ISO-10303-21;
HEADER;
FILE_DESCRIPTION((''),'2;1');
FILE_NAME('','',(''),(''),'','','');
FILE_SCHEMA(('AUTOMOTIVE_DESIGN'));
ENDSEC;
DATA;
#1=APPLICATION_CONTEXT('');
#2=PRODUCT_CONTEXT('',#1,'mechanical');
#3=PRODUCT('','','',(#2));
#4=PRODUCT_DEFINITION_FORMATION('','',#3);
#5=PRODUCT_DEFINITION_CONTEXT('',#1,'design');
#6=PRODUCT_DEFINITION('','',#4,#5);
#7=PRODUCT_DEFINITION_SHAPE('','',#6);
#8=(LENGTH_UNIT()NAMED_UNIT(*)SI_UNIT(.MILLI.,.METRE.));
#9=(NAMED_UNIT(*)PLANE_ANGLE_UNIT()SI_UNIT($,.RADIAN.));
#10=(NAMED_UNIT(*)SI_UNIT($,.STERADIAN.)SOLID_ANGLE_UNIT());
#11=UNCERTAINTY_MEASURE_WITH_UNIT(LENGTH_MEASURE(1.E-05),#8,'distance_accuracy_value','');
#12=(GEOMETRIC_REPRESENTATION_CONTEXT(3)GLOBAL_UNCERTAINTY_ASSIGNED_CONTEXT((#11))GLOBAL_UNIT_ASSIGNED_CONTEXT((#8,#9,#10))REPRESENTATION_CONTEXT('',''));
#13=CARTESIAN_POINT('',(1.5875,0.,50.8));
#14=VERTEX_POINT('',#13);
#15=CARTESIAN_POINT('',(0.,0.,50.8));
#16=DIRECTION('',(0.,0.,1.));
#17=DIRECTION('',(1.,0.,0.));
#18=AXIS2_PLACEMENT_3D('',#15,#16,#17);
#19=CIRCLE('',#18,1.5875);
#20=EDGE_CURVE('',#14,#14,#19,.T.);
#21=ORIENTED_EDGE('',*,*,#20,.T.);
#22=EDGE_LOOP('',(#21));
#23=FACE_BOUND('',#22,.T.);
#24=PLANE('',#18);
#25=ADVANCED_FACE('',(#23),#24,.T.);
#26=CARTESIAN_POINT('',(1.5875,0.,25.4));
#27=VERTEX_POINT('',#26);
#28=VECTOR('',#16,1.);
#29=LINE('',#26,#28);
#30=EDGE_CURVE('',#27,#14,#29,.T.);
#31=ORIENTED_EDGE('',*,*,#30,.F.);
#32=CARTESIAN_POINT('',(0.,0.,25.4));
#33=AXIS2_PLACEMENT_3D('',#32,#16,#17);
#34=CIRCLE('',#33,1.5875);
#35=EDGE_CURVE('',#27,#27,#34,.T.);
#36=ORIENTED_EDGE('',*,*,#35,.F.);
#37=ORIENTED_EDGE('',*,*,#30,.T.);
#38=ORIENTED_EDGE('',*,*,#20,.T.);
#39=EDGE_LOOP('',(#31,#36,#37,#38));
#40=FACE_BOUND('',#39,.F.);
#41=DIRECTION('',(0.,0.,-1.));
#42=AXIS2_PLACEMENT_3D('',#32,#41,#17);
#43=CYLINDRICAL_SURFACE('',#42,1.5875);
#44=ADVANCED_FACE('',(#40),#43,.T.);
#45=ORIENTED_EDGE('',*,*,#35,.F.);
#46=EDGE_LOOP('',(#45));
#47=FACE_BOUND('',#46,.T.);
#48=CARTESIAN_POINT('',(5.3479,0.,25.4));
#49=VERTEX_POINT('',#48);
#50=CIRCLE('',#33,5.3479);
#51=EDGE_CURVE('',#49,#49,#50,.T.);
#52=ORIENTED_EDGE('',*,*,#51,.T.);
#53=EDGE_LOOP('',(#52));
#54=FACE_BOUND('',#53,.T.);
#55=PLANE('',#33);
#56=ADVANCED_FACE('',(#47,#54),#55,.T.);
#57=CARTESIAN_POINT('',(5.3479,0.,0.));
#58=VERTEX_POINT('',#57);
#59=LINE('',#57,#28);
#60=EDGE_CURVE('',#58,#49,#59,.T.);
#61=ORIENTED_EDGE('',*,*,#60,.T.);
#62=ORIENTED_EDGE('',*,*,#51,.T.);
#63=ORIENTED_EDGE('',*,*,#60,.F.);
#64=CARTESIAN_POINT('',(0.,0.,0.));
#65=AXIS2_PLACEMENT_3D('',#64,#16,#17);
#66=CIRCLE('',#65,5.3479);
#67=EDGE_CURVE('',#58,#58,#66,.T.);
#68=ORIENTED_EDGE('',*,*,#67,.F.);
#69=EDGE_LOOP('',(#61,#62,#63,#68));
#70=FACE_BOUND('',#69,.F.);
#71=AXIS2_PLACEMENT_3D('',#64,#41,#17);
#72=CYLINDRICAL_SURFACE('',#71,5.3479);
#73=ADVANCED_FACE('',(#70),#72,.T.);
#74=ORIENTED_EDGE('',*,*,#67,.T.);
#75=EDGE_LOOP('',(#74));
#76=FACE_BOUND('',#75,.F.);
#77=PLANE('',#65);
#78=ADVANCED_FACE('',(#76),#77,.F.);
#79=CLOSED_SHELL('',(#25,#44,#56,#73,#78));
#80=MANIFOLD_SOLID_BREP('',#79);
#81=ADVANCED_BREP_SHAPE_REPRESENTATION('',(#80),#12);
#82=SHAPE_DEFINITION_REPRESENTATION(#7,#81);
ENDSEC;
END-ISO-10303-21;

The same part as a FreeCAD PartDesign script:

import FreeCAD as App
import Part
import Sketcher
Q = App.Units.Quantity

doc = App.newDocument("Part")
params = doc.addObject("Spreadsheet::Sheet", "Params")
for row, (alias, value) in enumerate([
    ("pad1_length", "1 in"),
    ("sketch2_diameter", "0.125 in"),
    ("pad2_length", "1 in"),
], start=1):
    params.set(f"A{row}", alias)
    params.set(f"B{row}", "=" + value)
    params.setAlias(f"B{row}", alias)

body = doc.addObject("PartDesign::Body", "Body")

sketch1 = body.newObject("Sketcher::SketchObject", "Sketch")
sketch1.AttachmentSupport = (doc.getObject("XY_Plane"), [""])
sketch1.MapMode = "FlatFace"
sketch1.addGeometry(Part.Circle(App.Vector(0, 0, 0), App.Vector(0, 0, 1), 5), False)
sketch1.addConstraint(Sketcher.Constraint("Coincident", 0, 3, -1, 1))
sketch1.addConstraint(Sketcher.Constraint("Diameter", 0, Q("0.4211 in")))
pad1 = body.newObject("PartDesign::Pad", "Pad")
pad1.Profile = sketch1
pad1.setExpression("Length", "Params.pad1_length")

sketch2 = body.newObject("Sketcher::SketchObject", "Sketch001")
sketch2.AttachmentSupport = (doc.getObject("XY_Plane"), [""])
sketch2.MapMode = "FlatFace"
sketch2.AttachmentOffset = App.Placement(App.Vector(0, 0, 1 * 25.4), App.Rotation())
sketch2.addGeometry(Part.Circle(App.Vector(0, 0, 0), App.Vector(0, 0, 1), 1.6), False)
sketch2.addConstraint(Sketcher.Constraint("Coincident", 0, 3, -1, 1))
sketch2.addConstraint(Sketcher.Constraint("Diameter", 0, Q("0.125 in")))
sketch2.setExpression("Constraints[1]", "Params.sketch2_diameter")
pad2 = body.newObject("PartDesign::Pad", "Pad001")
pad2.Profile = sketch2
pad2.setExpression("Length", "Params.pad2_length")

doc.recompute()
